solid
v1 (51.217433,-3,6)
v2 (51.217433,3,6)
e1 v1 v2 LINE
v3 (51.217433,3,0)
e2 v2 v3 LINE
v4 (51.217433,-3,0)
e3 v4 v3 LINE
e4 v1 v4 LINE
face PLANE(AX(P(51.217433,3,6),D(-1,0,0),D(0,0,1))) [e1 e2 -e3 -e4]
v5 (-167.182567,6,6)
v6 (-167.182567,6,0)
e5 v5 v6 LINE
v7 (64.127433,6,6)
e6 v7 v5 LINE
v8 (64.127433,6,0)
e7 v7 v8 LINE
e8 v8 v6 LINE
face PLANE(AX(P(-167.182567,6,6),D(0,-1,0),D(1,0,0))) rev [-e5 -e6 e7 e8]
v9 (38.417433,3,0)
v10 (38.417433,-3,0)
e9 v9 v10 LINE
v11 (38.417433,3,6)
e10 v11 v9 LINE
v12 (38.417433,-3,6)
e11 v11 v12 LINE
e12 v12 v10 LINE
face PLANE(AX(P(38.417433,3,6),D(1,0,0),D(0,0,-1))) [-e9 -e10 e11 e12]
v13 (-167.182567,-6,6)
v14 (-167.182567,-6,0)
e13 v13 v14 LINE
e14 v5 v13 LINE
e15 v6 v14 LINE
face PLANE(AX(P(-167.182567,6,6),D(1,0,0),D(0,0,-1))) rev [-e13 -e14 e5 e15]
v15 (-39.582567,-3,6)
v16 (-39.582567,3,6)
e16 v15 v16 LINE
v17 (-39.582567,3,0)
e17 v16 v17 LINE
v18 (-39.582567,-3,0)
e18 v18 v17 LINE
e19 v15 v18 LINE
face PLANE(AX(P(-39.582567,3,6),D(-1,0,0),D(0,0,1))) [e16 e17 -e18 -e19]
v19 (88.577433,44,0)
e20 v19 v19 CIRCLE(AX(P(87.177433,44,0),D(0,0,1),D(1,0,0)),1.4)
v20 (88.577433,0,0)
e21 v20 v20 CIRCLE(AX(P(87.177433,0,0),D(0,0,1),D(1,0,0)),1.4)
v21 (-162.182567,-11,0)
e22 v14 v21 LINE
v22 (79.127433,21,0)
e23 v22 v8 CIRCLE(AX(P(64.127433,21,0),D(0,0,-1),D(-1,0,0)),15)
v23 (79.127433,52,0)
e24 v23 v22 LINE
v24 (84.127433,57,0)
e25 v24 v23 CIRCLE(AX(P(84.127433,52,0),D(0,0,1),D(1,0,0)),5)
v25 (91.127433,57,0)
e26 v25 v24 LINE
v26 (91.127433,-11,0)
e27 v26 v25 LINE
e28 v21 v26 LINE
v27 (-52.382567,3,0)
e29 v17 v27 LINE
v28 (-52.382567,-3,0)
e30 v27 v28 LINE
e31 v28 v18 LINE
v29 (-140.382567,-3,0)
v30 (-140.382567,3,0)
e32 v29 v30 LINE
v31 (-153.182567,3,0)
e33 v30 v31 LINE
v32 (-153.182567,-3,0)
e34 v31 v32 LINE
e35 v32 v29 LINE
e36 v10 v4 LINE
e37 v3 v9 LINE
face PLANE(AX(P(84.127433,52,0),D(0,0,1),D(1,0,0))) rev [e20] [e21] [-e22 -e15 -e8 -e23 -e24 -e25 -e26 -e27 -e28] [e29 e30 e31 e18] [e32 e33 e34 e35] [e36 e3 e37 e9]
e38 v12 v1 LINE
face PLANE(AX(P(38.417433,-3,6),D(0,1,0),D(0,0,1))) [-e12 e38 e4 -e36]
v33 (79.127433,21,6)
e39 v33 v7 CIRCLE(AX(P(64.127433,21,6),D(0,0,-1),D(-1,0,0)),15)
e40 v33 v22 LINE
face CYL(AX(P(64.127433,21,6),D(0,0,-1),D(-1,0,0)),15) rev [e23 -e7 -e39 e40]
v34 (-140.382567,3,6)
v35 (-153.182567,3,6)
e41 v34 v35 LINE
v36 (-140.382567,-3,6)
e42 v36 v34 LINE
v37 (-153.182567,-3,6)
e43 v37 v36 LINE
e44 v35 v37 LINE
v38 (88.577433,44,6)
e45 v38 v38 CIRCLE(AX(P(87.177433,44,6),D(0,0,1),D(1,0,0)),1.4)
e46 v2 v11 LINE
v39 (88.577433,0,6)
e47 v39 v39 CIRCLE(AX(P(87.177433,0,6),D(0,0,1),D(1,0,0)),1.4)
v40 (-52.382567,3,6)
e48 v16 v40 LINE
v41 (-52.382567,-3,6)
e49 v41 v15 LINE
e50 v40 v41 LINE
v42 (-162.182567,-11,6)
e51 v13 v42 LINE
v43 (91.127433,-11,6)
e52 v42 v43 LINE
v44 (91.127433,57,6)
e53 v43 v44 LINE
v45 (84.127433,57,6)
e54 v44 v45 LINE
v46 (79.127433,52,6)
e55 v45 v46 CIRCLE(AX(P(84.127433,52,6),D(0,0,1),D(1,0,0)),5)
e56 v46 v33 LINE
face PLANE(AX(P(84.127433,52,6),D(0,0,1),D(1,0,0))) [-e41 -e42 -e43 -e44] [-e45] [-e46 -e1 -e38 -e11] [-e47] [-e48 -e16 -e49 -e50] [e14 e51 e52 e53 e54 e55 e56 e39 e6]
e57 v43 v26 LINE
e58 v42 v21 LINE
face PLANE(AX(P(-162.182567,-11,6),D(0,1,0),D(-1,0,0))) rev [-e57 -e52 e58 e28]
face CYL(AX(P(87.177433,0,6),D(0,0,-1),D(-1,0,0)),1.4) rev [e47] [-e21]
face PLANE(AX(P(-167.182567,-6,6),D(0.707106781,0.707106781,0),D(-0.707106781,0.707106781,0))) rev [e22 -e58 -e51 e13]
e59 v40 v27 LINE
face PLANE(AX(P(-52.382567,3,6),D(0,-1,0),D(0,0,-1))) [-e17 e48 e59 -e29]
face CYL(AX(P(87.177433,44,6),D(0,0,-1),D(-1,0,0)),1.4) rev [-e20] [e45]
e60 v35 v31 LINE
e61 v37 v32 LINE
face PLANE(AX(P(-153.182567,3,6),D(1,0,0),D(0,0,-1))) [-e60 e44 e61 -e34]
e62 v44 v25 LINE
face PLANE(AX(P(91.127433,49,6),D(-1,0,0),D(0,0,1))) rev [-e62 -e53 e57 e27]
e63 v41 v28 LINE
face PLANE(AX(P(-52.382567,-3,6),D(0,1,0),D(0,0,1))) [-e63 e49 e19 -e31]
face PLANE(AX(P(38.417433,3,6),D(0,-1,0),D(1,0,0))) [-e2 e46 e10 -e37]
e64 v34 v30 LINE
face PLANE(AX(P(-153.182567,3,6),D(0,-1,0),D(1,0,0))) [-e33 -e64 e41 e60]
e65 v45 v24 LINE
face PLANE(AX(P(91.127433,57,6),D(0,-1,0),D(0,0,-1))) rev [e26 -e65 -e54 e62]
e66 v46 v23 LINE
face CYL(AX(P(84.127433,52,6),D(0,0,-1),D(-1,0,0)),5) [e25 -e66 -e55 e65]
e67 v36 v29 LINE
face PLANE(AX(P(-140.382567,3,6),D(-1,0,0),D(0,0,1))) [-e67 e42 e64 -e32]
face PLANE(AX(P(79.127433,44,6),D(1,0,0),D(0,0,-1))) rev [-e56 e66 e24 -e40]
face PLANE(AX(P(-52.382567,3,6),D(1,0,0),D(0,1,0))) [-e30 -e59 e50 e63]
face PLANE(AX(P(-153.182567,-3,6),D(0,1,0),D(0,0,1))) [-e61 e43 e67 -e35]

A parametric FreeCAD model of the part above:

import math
import FreeCAD as App
import Part
import Sketcher

V = App.Vector
Q = App.Units.Quantity


def add_polygon(sketch, points):
    """Adds a closed chain of lines whose ends are joined by coincident constraints."""
    first, n = sketch.GeometryCount, len(points)
    for a, b in zip(points, points[1:] + points[:1]):
        sketch.addGeometry(Part.LineSegment(App.Vector(*a, 0), App.Vector(*b, 0)), False)
    for i in range(n):
        sketch.addConstraint(Sketcher.Constraint("Coincident", first + i, 2, first + (i + 1) % n, 1))

doc = App.newDocument("Part")
params = doc.addObject("Spreadsheet::Sheet", "Params")
for row, (alias, value) in enumerate([
    ("sketch1_radius", "5 mm"),
    ("sketch1_radius2", "15 mm"),
    ("sketch1_diameter", "2.8 mm"),
    ("sketch1_width", "7 mm"),
    ("sketch1_height", "12 mm"),
    ("pad1_length", "6 mm"),
], start=1):
    params.set(f"A{row}", alias)
    params.set(f"B{row}", "=" + value)
    params.setAlias(f"B{row}", alias)

body = doc.addObject("PartDesign::Body", "Body")

# Sketch on XY plane
sketch1 = body.newObject("Sketcher::SketchObject", "Sketch")
sketch1.AttachmentSupport = (doc.getObject("XY_Plane"), [""])
sketch1.MapMode = "FlatFace"
sketch1.addGeometry(Part.LineSegment(V(64.127433, 6, 0), V(-167.182567, 6, 0)), False)  # 0
sketch1.addGeometry(Part.LineSegment(V(-167.182567, 6, 0), V(-167.182567, -6, 0)), False)  # 1
sketch1.addGeometry(Part.LineSegment(V(-167.182567, -6, 0), V(-162.182567, -11, 0)), False)  # 2
sketch1.addGeometry(Part.LineSegment(V(-162.182567, -11, 0), V(91.127433, -11, 0)), False)  # 3
sketch1.addGeometry(Part.LineSegment(V(91.127433, -11, 0), V(91.127433, 57, 0)), False)  # 4
sketch1.addGeometry(Part.LineSegment(V(91.127433, 57, 0), V(84.127433, 57, 0)), False)  # 5
sketch1.addGeometry(Part.ArcOfCircle(Part.Circle(V(84.127433, 52, 0), V(0, 0, 1), 5), math.radians(90), math.radians(180)), False)  # 6
sketch1.addGeometry(Part.LineSegment(V(79.127433, 52, 0), V(79.127433, 21, 0)), False)  # 7
sketch1.addGeometry(Part.ArcOfCircle(Part.Circle(V(64.127433, 21, 0), V(0, 0, 1), 15), math.radians(-90), math.radians(0)), False)  # 8
sketch1.addGeometry(Part.Circle(V(87.177433, 0, 0), V(0, 0, 1), 1.4), False)  # 9
add_polygon(sketch1, [(38.417433, -3), (38.417433, 3), (51.217433, 3), (51.217433, -3)])  # lines 10-13
add_polygon(sketch1, [(-52.382567, -3), (-52.382567, 3), (-39.582567, 3), (-39.582567, -3)])  # lines 14-17
add_polygon(sketch1, [(-153.182567, -3), (-153.182567, 3), (-140.382567, 3), (-140.382567, -3)])  # lines 18-21
sketch1.addGeometry(Part.Circle(V(87.177433, 44, 0), V(0, 0, 1), 1.4), False)  # 22
sketch1.addConstraint(Sketcher.Constraint("Coincident", 0, 2, 1, 1))
sketch1.addConstraint(Sketcher.Constraint("Coincident", 1, 2, 2, 1))
sketch1.addConstraint(Sketcher.Constraint("Coincident", 2, 2, 3, 1))
sketch1.addConstraint(Sketcher.Constraint("Coincident", 3, 2, 4, 1))
sketch1.addConstraint(Sketcher.Constraint("Coincident", 4, 2, 5, 1))
sketch1.addConstraint(Sketcher.Constraint("Tangent", 5, 2, 6, 1))
sketch1.addConstraint(Sketcher.Constraint("Tangent", 6, 2, 7, 1))
sketch1.addConstraint(Sketcher.Constraint("Tangent", 7, 2, 8, 2))
sketch1.addConstraint(Sketcher.Constraint("Tangent", 8, 1, 0, 1))
sketch1.addConstraint(Sketcher.Constraint("Horizontal", 0))
sketch1.addConstraint(Sketcher.Constraint("Vertical", 1))
sketch1.addConstraint(Sketcher.Constraint("Horizontal", 3))
sketch1.addConstraint(Sketcher.Constraint("Vertical", 4))
sketch1.addConstraint(Sketcher.Constraint("Horizontal", 5))
sketch1.addConstraint(Sketcher.Constraint("Vertical", 7))
sketch1.addConstraint(Sketcher.Constraint("Vertical", 10))
sketch1.addConstraint(Sketcher.Constraint("Horizontal", 11))
sketch1.addConstraint(Sketcher.Constraint("Vertical", 12))
sketch1.addConstraint(Sketcher.Constraint("Horizontal", 13))
sketch1.addConstraint(Sketcher.Constraint("Vertical", 14))
sketch1.addConstraint(Sketcher.Constraint("Horizontal", 15))
sketch1.addConstraint(Sketcher.Constraint("Vertical", 16))
sketch1.addConstraint(Sketcher.Constraint("Horizontal", 17))
sketch1.addConstraint(Sketcher.Constraint("Vertical", 18))
sketch1.addConstraint(Sketcher.Constraint("Horizontal", 19))
sketch1.addConstraint(Sketcher.Constraint("Vertical", 20))
sketch1.addConstraint(Sketcher.Constraint("Horizontal", 21))
sketch1.addConstraint(Sketcher.Constraint("Equal", 9, 22))
sketch1.addConstraint(Sketcher.Constraint("PointOnObject", 9, 3, -1))
sketch1.addConstraint(Sketcher.Constraint("Horizontal", 11, 2, 14, 2))
sketch1.addConstraint(Sketcher.Constraint("Horizontal", 13, 2, 16, 2))
sketch1.addConstraint(Sketcher.Constraint("Horizontal", 15, 2, 18, 2))
sketch1.addConstraint(Sketcher.Constraint("Horizontal", 17, 2, 20, 2))
sketch1.addConstraint(Sketcher.Constraint("Vertical", 9, 3, 22, 3))
sketch1.addConstraint(Sketcher.Constraint("Equal", 13, 15))
sketch1.addConstraint(Sketcher.Constraint("Equal", 17, 19))
sketch1.addConstraint(Sketcher.Constraint("Radius", 6, Q("5 mm")))
sketch1.addConstraint(Sketcher.Constraint("Radius", 8, Q("15 mm")))
sketch1.addConstraint(Sketcher.Constraint("Diameter", 9, Q("2.8 mm")))
sketch1.addConstraint(Sketcher.Constraint("DistanceX", 5, 2, 5, 1, Q("7 mm")))
sketch1.addConstraint(Sketcher.Constraint("DistanceY", 1, 2, 1, 1, Q("12 mm")))
sketch1.addConstraint(Sketcher.Constraint("DistanceY", 4, 1, 4, 2, Q("68 mm")))
sketch1.addConstraint(Sketcher.Constraint("DistanceY", 7, 2, 7, 1, Q("31 mm")))
sketch1.addConstraint(Sketcher.Constraint("DistanceY", 10, 1, 10, 2, Q("6 mm")))
sketch1.addConstraint(Sketcher.Constraint("Angle", 2, Q("-45 deg")))
sketch1.addConstraint(Sketcher.Constraint("DistanceX", 11, 1, 11, 2, Q("12.8 mm")))
sketch1.addConstraint(Sketcher.Constraint("DistanceY", -1, 1, 6, 3, Q("52 mm")))
sketch1.addConstraint(Sketcher.Constraint("DistanceY", -1, 1, 22, 3, Q("44 mm")))
sketch1.addConstraint(Sketcher.Constraint("DistanceY", -1, 1, 10, 2, Q("3 mm")))
sketch1.addConstraint(Sketcher.Constraint("DistanceX", 15, 2, 10, 2, Q("78 mm")))
sketch1.addConstraint(Sketcher.Constraint("DistanceX", 0, 2, 18, 2, Q("14 mm")))
sketch1.addConstraint(Sketcher.Constraint("DistanceX", 19, 2, 14, 2, Q("88 mm")))
sketch1.addConstraint(Sketcher.Constraint("DistanceX", 0, 2, 0, 1, Q("231.31 mm")))
sketch1.addConstraint(Sketcher.Constraint("DistanceX", 8, 3, 9, 3, Q("23.05 mm")))
sketch1.addConstraint(Sketcher.Constraint("DistanceX", -1, 1, 6, 3, Q("84.127433 mm")))
sketch1.setExpression("Constraints[48]", "Params.sketch1_radius")
sketch1.setExpression("Constraints[49]", "Params.sketch1_radius2")
sketch1.setExpression("Constraints[50]", "Params.sketch1_diameter")
sketch1.setExpression("Constraints[51]", "Params.sketch1_width")
sketch1.setExpression("Constraints[52]", "Params.sketch1_height")
pad1 = body.newObject("PartDesign::Pad", "Pad")
pad1.Profile = sketch1
pad1.setExpression("Length", "Params.pad1_length")

doc.recompute()
